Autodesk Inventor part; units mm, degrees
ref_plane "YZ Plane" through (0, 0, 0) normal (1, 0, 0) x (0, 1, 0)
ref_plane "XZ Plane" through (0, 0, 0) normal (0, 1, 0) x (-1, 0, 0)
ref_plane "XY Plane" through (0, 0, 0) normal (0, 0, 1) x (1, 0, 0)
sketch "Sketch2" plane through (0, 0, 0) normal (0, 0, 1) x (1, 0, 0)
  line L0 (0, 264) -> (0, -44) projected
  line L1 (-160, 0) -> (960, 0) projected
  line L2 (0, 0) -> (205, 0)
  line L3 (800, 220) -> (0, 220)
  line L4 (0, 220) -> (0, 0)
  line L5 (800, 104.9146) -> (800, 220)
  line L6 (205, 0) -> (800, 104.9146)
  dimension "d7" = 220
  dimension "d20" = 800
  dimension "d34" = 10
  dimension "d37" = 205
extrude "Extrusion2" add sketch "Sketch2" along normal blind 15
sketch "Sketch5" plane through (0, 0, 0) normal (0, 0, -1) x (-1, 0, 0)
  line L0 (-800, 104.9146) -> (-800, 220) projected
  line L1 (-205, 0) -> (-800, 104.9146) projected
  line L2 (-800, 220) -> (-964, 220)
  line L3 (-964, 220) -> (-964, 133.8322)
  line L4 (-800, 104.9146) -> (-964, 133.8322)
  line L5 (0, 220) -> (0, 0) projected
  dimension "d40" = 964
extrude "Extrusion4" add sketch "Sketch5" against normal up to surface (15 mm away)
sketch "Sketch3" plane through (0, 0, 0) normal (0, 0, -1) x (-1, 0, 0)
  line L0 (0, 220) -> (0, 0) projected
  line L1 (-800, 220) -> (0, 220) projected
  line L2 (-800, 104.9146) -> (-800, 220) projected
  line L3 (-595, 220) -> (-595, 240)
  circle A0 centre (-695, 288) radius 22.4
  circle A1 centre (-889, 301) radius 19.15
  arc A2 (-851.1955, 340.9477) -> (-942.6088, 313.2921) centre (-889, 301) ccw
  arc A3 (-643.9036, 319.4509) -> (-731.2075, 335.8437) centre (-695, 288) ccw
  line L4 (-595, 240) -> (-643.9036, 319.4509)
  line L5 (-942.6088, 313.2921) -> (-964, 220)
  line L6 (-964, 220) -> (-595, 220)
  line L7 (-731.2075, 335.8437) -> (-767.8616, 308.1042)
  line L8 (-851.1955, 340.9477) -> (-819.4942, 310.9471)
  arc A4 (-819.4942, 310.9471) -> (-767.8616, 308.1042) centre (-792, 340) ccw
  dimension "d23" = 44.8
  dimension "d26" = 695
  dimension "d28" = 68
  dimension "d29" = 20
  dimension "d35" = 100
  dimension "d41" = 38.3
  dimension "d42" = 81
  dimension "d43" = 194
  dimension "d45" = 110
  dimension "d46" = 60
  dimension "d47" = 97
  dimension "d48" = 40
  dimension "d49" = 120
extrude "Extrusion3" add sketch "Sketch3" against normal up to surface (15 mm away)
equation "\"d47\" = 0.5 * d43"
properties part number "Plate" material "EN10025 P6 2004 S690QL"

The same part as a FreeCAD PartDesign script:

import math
import FreeCAD as App
import Part
import Sketcher
from FreeCAD import Vector
Q = App.Units.Quantity


def add_polygon(sketch, points):
    """Adds a closed chain of lines whose ends are joined by coincident constraints."""
    first, n = sketch.GeometryCount, len(points)
    for a, b in zip(points, points[1:] + points[:1]):
        sketch.addGeometry(Part.LineSegment(App.Vector(*a, 0), App.Vector(*b, 0)), False)
    for i in range(n):
        sketch.addConstraint(Sketcher.Constraint("Coincident", first + i, 2, first + (i + 1) % n, 1))

doc = App.newDocument("Part")
body = doc.addObject("PartDesign::Body", "Body")

sketch1 = body.newObject("Sketcher::SketchObject", "Sketch")
sketch1.AttachmentSupport = (doc.getObject("XY_Plane"), [""])
sketch1.MapMode = "FlatFace"
add_polygon(sketch1, [(800, 220), (0, 220), (0, 0), (205, 0), (800, 105)])
sketch1.addConstraint(Sketcher.Constraint("Horizontal", 0))
sketch1.addConstraint(Sketcher.Constraint("Vertical", 1))
sketch1.addConstraint(Sketcher.Constraint("Horizontal", 2))
sketch1.addConstraint(Sketcher.Constraint("Vertical", 4))
sketch1.addConstraint(Sketcher.Constraint("Coincident", 1, 2, -1, 1))
sketch1.addConstraint(Sketcher.Constraint("DistanceX", 0, 2, 0, 1, 800.0))
sketch1.addConstraint(Sketcher.Constraint("DistanceX", 2, 1, 2, 2, 205.0))
sketch1.addConstraint(Sketcher.Constraint("DistanceY", 1, 2, 1, 1, 220.0))
sketch1.addConstraint(Sketcher.Constraint("Angle", 3, Q("10 deg")))
pad1 = body.newObject("PartDesign::Pad", "Pad")
pad1.Profile = sketch1
pad1.Length = 15

sketch2 = body.newObject("Sketcher::SketchObject", "Sketch001")
sketch2.AttachmentSupport = (doc.getObject("XY_Plane"), [""])
sketch2.MapMode = "FlatFace"
add_polygon(sketch2, [(964, 134), (800, 105), (800, 220), (964, 220)])
sketch2.addConstraint(Sketcher.Constraint("Vertical", 1))
sketch2.addConstraint(Sketcher.Constraint("Horizontal", 2))
sketch2.addConstraint(Sketcher.Constraint("Vertical", 3))
sketch2.addConstraint(Sketcher.Constraint("DistanceX", -1, 1, 2, 2, 964.0))
sketch2.addConstraint(Sketcher.Constraint("DistanceX", 2, 1, 2, 2, 164.0))
sketch2.addConstraint(Sketcher.Constraint("Angle", 0, Q("-170 deg")))
sketch2.addConstraint(Sketcher.Constraint("DistanceY", -1, 1, 1, 2, 220.0))
sketch2.addConstraint(Sketcher.Constraint("DistanceY", 1, 1, 1, 2, 115.0854))
pad2 = body.newObject("PartDesign::Pad", "Pad001")
pad2.Profile = sketch2
pad2.Length = 15

sketch3 = body.newObject("Sketcher::SketchObject", "Sketch002")
sketch3.AttachmentSupport = (doc.getObject("XY_Plane"), [""])
sketch3.MapMode = "FlatFace"
sketch3.addGeometry(Part.LineSegment(Vector(964, 220, 0), Vector(595, 220, 0)), False)
sketch3.addGeometry(Part.LineSegment(Vector(595, 220, 0), Vector(595, 240, 0)), False)
sketch3.addGeometry(Part.LineSegment(Vector(595, 240, 0), Vector(644, 319, 0)), False)
sketch3.addGeometry(Part.ArcOfCircle(Part.Circle(Vector(695, 288, 0), Vector(0, 0, 1), 60), math.radians(53), math.radians(148)), False)
sketch3.addGeometry(Part.LineSegment(Vector(731, 336, 0), Vector(768, 308, 0)), False)
sketch3.addGeometry(Part.ArcOfCircle(Part.Circle(Vector(792, 340, 0), Vector(0, 0, 1), 40), math.radians(-127), math.radians(-47)), False)
sketch3.addGeometry(Part.LineSegment(Vector(819, 311, 0), Vector(851, 341, 0)), False)
sketch3.addGeometry(Part.ArcOfCircle(Part.Circle(Vector(889, 301, 0), Vector(0, 0, 1), 55), math.radians(13), math.radians(133)), False)
sketch3.addGeometry(Part.LineSegment(Vector(943, 313, 0), Vector(964, 220, 0)), False)
sketch3.addGeometry(Part.Circle(Vector(889, 301, 0), Vector(0, 0, 1), 19), False)
sketch3.addGeometry(Part.Circle(Vector(695, 288, 0), Vector(0, 0, 1), 22), False)
sketch3.addConstraint(Sketcher.Constraint("Coincident", 0, 2, 1, 1))
sketch3.addConstraint(Sketcher.Constraint("Coincident", 1, 2, 2, 1))
sketch3.addConstraint(Sketcher.Constraint("Tangent", 2, 2, 3, 2))
sketch3.addConstraint(Sketcher.Constraint("Tangent", 3, 1, 4, 1))
sketch3.addConstraint(Sketcher.Constraint("Tangent", 4, 2, 5, 1))
sketch3.addConstraint(Sketcher.Constraint("Tangent", 5, 2, 6, 1))
sketch3.addConstraint(Sketcher.Constraint("Tangent", 6, 2, 7, 2))
sketch3.addConstraint(Sketcher.Constraint("Tangent", 7, 1, 8, 1))
sketch3.addConstraint(Sketcher.Constraint("Coincident", 8, 2, 0, 1))
sketch3.addConstraint(Sketcher.Constraint("Horizontal", 0))
sketch3.addConstraint(Sketcher.Constraint("Vertical", 1))
sketch3.addConstraint(Sketcher.Constraint("Coincident", 9, 3, 7, 3))
sketch3.addConstraint(Sketcher.Constraint("Coincident", 10, 3, 3, 3))
sketch3.addConstraint(Sketcher.Constraint("Radius", 3, 60.0))
sketch3.addConstraint(Sketcher.Constraint("Radius", 5, 40.0))
sketch3.addConstraint(Sketcher.Constraint("Radius", 7, 55.0))
sketch3.addConstraint(Sketcher.Constraint("Diameter", 9, 38.3))
sketch3.addConstraint(Sketcher.Constraint("Diameter", 10, 44.8))
sketch3.addConstraint(Sketcher.Constraint("DistanceY", 1, 1, 1, 2, 20.0))
sketch3.addConstraint(Sketcher.Constraint("DistanceX", -1, 1, 3, 3, 695.0))
sketch3.addConstraint(Sketcher.Constraint("DistanceX", 3, 3, 5, 3, 97.0))
sketch3.addConstraint(Sketcher.Constraint("DistanceX", 5, 3, 7, 3, 97.0))
sketch3.addConstraint(Sketcher.Constraint("DistanceX", 0, 2, 3, 3, 100.0))
sketch3.addConstraint(Sketcher.Constraint("DistanceY", 0, 2, 3, 3, 68.0))
sketch3.addConstraint(Sketcher.Constraint("DistanceY", 0, 2, 5, 3, 120.0))
sketch3.addConstraint(Sketcher.Constraint("DistanceY", 0, 2, 7, 3, 81.0))
sketch3.addConstraint(Sketcher.Constraint("DistanceX", 0, 2, 0, 1, 369.0))
sketch3.addConstraint(Sketcher.Constraint("DistanceY", -1, 1, 3, 3, 288.0))
pad3 = body.newObject("PartDesign::Pad", "Pad002")
pad3.Profile = sketch3
pad3.Length = 15

doc.recompute()
